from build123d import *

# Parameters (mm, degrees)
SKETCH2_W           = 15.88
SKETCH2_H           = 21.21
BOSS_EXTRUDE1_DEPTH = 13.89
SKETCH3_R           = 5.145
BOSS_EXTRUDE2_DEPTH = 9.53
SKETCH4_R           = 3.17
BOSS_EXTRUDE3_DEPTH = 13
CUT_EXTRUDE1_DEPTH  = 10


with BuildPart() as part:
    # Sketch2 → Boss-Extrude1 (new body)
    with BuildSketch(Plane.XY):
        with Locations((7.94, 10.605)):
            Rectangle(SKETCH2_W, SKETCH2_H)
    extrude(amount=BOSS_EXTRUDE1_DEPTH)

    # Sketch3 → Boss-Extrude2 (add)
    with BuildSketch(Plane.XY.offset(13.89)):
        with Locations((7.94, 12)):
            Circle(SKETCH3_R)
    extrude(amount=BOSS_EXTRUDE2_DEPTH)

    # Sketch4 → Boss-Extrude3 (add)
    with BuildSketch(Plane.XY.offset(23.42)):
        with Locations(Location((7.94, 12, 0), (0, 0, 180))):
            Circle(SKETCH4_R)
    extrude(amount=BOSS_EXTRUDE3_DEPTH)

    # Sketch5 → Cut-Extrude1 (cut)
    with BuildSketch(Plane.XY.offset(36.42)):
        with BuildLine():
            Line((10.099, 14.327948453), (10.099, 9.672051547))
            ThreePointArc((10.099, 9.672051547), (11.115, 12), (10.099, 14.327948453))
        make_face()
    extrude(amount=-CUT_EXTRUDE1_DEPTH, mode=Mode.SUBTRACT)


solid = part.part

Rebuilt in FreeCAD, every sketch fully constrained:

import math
import FreeCAD as App
import Part
import Sketcher
from FreeCAD import Vector

doc = App.newDocument("Part")
body = doc.addObject("PartDesign::Body", "Body")

# Sketch on XY plane
sketch1 = doc.addObject("Sketcher::SketchObject", "Sketch")
body.addObject(sketch1)
sketch1.AttachmentSupport = (doc.XY_Plane, [""])
sketch1.MapMode = "FlatFace"
sketch1.addGeometry(Part.LineSegment(Vector(0, 21.21, 0), Vector(0, 0, 0)), False)
sketch1.addGeometry(Part.LineSegment(Vector(0, 0, 0), Vector(15.88, 0, 0)), False)
sketch1.addGeometry(Part.LineSegment(Vector(15.88, 0, 0), Vector(15.88, 21.21, 0)), False)
sketch1.addGeometry(Part.LineSegment(Vector(15.88, 21.21, 0), Vector(0, 21.21, 0)), False)
sketch1.addConstraint(Sketcher.Constraint("Coincident", 0, 2, 1, 1))
sketch1.addConstraint(Sketcher.Constraint("Coincident", 1, 2, 2, 1))
sketch1.addConstraint(Sketcher.Constraint("Coincident", 2, 2, 3, 1))
sketch1.addConstraint(Sketcher.Constraint("Coincident", 3, 2, 0, 1))
sketch1.addConstraint(Sketcher.Constraint("Vertical", 0))
sketch1.addConstraint(Sketcher.Constraint("Horizontal", 1))
sketch1.addConstraint(Sketcher.Constraint("Vertical", 2))
sketch1.addConstraint(Sketcher.Constraint("Horizontal", 3))
sketch1.addConstraint(Sketcher.Constraint("Coincident", 0, 2, -1, 1))
sketch1.addConstraint(Sketcher.Constraint("DistanceX", 1, 1, 1, 2, 15.88))
sketch1.addConstraint(Sketcher.Constraint("DistanceY", 0, 2, 0, 1, 21.21))
pad1 = doc.addObject("PartDesign::Pad", "Pad")
body.addObject(pad1)
pad1.Profile = sketch1
pad1.Length = 13.89

# Sketch on XY plane
sketch2 = doc.addObject("Sketcher::SketchObject", "Sketch001")
body.addObject(sketch2)
sketch2.AttachmentSupport = (doc.XY_Plane, [""])
sketch2.MapMode = "FlatFace"
sketch2.AttachmentOffset = App.Placement(Vector(0, 0, 13.89), App.Rotation())
sketch2.addGeometry(Part.Circle(Vector(7.94, 12, 0), Vector(0, 0, 1), 5.145), False)
sketch2.addConstraint(Sketcher.Constraint("Diameter", 0, 10.29))
sketch2.addConstraint(Sketcher.Constraint("DistanceY", -1, 1, 0, 3, 12.0))
sketch2.addConstraint(Sketcher.Constraint("DistanceX", -1, 1, 0, 3, 7.94))
pad2 = doc.addObject("PartDesign::Pad", "Pad001")
body.addObject(pad2)
pad2.Profile = sketch2
pad2.Length = 9.53

# Sketch on XY plane
sketch3 = doc.addObject("Sketcher::SketchObject", "Sketch002")
body.addObject(sketch3)
sketch3.AttachmentSupport = (doc.XY_Plane, [""])
sketch3.MapMode = "FlatFace"
sketch3.AttachmentOffset = App.Placement(Vector(0, 0, 23.42), App.Rotation())
sketch3.addGeometry(Part.Circle(Vector(7.94, 12, 0), Vector(0, 0, 1), 3.17), False)
sketch3.addConstraint(Sketcher.Constraint("Diameter", 0, 6.34))
sketch3.addConstraint(Sketcher.Constraint("DistanceY", -1, 1, 0, 3, 12.0))
sketch3.addConstraint(Sketcher.Constraint("DistanceX", -1, 1, 0, 3, 7.94))
pad3 = doc.addObject("PartDesign::Pad", "Pad002")
body.addObject(pad3)
pad3.Profile = sketch3
pad3.Length = 13

# Sketch on XY plane
sketch4 = doc.addObject("Sketcher::SketchObject", "Sketch003")
body.addObject(sketch4)
sketch4.AttachmentSupport = (doc.XY_Plane, [""])
sketch4.MapMode = "FlatFace"
sketch4.AttachmentOffset = App.Placement(Vector(0, 0, 36.42), App.Rotation())
sketch4.addGeometry(Part.LineSegment(Vector(10.099, 14.327948, 0), Vector(10.099, 9.672052, 0)), False)
sketch4.addGeometry(Part.ArcOfCircle(Part.Circle(Vector(7.94, 12, 0), Vector(0, 0, 1), 3.175), math.radians(-47.156357), math.radians(47.156357)), False)
sketch4.addConstraint(Sketcher.Constraint("Coincident", 0, 1, 1, 2))
sketch4.addConstraint(Sketcher.Constraint("Coincident", 1, 1, 0, 2))
sketch4.addConstraint(Sketcher.Constraint("Vertical", 0))
sketch4.addConstraint(Sketcher.Constraint("DistanceY", -1, 1, 1, 3, 12.0))
sketch4.addConstraint(Sketcher.Constraint("Radius", 1, 3.175))
sketch4.addConstraint(Sketcher.Constraint("DistanceX", -1, 1, 1, 3, 7.94))
sketch4.addConstraint(Sketcher.Constraint("DistanceX", -1, 1, 0, 1, 10.099))
pocket1 = doc.addObject("PartDesign::Pocket", "Pocket")
body.addObject(pocket1)
pocket1.Profile = sketch4
pocket1.Length = 10

doc.recompute()
